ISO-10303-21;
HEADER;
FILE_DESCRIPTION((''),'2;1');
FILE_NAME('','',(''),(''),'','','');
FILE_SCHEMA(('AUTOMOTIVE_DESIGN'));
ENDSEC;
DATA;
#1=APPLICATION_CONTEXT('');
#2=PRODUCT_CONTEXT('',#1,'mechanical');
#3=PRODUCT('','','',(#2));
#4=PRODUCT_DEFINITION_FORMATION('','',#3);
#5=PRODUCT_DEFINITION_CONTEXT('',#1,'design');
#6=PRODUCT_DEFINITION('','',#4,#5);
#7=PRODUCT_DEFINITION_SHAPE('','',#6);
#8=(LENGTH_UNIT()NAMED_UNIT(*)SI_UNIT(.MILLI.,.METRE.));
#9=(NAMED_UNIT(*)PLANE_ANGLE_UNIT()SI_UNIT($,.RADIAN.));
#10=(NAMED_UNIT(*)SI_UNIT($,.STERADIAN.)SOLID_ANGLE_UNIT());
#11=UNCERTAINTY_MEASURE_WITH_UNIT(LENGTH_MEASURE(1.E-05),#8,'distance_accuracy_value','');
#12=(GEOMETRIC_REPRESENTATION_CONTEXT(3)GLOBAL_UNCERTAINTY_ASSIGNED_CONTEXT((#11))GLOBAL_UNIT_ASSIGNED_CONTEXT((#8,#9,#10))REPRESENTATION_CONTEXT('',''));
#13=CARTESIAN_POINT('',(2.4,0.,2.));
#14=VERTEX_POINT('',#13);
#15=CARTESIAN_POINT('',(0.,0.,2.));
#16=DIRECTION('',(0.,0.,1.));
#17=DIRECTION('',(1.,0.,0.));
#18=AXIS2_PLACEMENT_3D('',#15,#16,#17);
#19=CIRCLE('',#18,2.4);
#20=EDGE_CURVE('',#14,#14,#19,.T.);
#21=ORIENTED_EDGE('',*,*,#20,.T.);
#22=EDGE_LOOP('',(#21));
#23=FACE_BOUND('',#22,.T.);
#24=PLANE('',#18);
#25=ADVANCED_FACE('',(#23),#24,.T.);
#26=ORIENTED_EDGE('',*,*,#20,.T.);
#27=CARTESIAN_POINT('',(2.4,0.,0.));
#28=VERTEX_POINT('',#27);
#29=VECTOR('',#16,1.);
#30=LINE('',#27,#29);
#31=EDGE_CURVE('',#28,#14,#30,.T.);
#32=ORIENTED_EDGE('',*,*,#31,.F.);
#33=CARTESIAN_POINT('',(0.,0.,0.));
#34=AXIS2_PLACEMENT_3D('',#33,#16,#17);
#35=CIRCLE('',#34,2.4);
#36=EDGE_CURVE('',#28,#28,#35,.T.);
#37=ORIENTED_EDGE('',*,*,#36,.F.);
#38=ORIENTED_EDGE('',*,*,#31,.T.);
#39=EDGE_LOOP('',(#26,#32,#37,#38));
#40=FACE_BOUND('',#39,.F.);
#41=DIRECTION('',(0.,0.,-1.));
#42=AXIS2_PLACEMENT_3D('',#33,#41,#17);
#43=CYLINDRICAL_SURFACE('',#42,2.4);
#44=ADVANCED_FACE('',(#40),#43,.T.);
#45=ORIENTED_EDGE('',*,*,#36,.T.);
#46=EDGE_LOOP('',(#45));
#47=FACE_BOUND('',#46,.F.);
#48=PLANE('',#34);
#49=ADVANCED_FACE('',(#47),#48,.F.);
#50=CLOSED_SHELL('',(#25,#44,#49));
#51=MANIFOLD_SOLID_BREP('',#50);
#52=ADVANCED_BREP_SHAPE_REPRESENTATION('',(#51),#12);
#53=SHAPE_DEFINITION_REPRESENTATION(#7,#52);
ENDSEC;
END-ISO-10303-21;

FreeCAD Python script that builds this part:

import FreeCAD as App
import Part
import Sketcher
Q = App.Units.Quantity

doc = App.newDocument("Part")
body = doc.addObject("PartDesign::Body", "Body")

# Sketch on XY plane
sketch1 = doc.addObject("Sketcher::SketchObject", "Sketch")
body.addObject(sketch1)
sketch1.AttachmentSupport = (doc.XY_Plane, [""])
sketch1.MapMode = "FlatFace"
sketch1.addGeometry(Part.Circle(App.Vector(0, 0, 0), App.Vector(0, 0, 1), 2.4), False)
sketch1.addConstraint([
    Sketcher.Constraint("Coincident", 0, 3, -1, 1),
    Sketcher.Constraint("Diameter", 0, Q("4.8 mm")),
])
pad1 = doc.addObject("PartDesign::Pad", "Pad")
body.addObject(pad1)
pad1.Profile = sketch1
pad1.Length = 2

doc.recompute()
